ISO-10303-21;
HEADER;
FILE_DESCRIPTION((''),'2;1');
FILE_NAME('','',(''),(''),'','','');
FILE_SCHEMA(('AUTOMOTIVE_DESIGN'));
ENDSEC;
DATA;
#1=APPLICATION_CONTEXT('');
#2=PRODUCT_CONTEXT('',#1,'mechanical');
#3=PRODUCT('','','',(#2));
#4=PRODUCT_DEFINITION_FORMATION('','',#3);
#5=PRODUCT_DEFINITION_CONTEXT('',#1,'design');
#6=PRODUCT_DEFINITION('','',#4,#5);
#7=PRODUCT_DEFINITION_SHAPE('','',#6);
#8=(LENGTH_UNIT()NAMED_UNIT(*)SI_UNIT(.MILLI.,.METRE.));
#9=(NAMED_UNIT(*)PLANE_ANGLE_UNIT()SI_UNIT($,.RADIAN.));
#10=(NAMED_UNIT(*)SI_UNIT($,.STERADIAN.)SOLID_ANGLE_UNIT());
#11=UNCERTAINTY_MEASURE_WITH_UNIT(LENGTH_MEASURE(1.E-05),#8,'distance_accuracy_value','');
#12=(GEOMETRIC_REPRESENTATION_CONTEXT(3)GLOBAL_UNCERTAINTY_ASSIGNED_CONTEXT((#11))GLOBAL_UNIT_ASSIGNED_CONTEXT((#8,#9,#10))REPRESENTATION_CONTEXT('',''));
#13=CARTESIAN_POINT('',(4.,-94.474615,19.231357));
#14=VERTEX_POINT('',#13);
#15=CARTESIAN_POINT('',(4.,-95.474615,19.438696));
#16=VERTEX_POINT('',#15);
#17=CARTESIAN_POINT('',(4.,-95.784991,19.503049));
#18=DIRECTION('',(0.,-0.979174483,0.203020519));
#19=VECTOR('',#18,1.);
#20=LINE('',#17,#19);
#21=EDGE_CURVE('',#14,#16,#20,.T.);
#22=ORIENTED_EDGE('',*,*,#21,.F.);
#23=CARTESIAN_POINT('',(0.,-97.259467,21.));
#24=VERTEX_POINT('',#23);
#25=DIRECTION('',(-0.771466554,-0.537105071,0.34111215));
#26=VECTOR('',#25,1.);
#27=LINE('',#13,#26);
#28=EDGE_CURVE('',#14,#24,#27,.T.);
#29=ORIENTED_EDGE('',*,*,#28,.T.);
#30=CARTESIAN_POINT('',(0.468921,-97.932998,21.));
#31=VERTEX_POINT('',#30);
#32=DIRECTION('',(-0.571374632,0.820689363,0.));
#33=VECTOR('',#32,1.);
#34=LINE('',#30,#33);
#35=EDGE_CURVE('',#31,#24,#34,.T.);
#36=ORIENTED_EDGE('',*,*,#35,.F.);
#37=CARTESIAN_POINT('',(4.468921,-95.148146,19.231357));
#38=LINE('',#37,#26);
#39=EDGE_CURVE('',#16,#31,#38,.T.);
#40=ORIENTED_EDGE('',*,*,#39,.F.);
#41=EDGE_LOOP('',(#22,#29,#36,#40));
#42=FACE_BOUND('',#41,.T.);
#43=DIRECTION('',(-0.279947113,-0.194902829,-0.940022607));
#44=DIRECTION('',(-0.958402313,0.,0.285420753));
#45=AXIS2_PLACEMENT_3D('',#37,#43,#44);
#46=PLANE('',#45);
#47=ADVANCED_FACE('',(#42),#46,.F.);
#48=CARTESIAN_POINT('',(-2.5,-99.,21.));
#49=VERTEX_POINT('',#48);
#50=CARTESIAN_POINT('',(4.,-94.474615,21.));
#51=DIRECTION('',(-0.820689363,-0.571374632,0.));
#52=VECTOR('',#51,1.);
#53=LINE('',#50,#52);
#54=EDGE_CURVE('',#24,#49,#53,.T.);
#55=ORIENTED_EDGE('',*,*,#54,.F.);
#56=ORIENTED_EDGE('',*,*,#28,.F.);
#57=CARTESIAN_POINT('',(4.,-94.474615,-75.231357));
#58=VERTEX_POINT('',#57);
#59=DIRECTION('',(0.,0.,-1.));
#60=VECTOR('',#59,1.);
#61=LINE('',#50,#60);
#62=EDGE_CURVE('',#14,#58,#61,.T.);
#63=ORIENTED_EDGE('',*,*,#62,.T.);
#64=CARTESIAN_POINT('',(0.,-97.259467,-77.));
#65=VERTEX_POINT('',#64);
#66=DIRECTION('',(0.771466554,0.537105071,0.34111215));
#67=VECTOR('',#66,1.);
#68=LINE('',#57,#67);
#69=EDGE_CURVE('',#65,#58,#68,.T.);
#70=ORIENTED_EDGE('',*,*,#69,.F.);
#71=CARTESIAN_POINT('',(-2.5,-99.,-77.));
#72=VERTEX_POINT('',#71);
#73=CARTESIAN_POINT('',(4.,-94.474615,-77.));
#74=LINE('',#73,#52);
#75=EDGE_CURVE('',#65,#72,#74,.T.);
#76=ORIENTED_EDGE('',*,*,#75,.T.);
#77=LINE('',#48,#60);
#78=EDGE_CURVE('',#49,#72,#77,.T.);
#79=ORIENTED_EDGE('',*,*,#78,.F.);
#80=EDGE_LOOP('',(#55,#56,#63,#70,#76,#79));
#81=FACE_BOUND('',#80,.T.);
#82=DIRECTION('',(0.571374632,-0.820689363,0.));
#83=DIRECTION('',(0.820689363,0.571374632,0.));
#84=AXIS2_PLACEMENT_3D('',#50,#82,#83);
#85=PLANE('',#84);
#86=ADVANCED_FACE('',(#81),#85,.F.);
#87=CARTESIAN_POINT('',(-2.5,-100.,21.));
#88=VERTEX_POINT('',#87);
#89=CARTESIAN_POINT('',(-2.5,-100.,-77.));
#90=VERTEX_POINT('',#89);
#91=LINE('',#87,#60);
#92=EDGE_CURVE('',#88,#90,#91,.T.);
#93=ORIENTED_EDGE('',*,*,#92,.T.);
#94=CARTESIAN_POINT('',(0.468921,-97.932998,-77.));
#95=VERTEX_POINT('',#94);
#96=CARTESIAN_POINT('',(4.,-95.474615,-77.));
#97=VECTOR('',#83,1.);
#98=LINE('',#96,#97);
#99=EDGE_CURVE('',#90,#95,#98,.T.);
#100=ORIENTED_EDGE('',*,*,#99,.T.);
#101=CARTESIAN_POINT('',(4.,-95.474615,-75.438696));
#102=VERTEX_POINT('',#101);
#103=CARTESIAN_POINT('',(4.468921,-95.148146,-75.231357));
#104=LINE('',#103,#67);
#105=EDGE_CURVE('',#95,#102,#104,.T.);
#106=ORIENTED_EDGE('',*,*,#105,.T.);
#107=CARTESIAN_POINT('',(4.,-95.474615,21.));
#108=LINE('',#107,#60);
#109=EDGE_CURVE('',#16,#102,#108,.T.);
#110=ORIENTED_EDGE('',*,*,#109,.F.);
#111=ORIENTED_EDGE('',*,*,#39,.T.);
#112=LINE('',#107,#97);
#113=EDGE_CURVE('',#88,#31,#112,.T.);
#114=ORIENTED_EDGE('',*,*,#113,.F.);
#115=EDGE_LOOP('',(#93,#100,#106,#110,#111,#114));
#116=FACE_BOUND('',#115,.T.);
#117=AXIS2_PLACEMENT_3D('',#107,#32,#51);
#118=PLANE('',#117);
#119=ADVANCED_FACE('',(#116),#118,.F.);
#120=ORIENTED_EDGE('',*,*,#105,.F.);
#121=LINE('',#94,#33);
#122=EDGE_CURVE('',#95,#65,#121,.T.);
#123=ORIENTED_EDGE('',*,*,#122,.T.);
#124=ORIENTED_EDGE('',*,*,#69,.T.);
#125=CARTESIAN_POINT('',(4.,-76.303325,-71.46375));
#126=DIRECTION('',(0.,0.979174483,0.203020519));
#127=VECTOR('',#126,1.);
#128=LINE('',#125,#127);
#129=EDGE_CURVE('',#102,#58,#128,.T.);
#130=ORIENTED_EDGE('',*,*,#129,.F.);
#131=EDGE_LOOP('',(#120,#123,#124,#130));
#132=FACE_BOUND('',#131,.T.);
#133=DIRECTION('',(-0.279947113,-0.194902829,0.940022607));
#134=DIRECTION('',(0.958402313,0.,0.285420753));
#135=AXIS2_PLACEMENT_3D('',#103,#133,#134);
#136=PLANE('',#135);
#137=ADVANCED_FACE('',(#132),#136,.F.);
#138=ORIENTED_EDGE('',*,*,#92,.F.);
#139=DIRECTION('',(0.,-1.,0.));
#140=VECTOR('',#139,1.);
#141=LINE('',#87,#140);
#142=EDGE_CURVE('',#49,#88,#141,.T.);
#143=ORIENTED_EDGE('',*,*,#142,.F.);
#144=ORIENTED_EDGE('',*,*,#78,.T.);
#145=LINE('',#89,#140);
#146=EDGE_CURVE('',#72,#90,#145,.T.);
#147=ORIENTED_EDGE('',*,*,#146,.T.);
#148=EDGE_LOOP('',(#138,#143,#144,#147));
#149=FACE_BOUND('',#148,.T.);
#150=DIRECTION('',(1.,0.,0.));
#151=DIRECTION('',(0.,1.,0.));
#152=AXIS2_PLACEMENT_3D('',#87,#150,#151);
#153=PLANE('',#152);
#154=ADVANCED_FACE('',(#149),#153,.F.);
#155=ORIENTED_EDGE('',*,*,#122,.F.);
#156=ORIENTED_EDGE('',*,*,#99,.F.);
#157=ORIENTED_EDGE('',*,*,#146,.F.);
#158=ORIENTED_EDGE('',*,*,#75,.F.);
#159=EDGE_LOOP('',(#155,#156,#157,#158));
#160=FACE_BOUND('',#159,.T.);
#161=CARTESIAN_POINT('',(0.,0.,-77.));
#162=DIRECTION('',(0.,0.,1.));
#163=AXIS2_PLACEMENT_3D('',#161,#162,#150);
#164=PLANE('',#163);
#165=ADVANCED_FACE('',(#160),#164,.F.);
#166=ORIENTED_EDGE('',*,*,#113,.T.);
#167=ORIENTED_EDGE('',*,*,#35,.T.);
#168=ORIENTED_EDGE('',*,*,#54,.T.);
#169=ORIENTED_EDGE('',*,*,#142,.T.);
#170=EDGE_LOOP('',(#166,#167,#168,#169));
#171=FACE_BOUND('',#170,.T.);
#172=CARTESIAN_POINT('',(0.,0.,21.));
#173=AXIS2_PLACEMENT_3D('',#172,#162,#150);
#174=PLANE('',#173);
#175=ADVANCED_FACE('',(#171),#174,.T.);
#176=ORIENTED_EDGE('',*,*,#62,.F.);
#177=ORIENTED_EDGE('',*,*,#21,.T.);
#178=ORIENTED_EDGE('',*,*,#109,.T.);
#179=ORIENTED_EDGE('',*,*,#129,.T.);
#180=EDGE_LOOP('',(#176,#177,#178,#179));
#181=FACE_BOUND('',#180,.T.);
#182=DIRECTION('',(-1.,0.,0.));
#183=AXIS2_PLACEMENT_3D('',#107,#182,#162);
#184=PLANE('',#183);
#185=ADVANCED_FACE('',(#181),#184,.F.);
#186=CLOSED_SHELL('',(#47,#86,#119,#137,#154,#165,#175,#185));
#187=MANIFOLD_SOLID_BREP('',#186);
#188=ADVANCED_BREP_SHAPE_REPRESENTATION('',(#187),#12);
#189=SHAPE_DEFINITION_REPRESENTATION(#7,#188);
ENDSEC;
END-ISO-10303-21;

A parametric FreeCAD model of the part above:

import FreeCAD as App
import Part
import Sketcher

V = App.Vector


def add_polygon(sketch, points):
    """Adds a closed chain of lines whose ends are joined by coincident constraints."""
    first, n = sketch.GeometryCount, len(points)
    for a, b in zip(points, points[1:] + points[:1]):
        sketch.addGeometry(Part.LineSegment(App.Vector(*a, 0), App.Vector(*b, 0)), False)
    for i in range(n):
        sketch.addConstraint(Sketcher.Constraint("Coincident", first + i, 2, first + (i + 1) % n, 1))

doc = App.newDocument("Part")
params = doc.addObject("Spreadsheet::Sheet", "Params")
for row, (alias, value) in enumerate([
    ("sketch1_height", "1 mm"),
    ("pad1_length", "21 mm"),
    ("pad1_length2", "77 mm"),
], start=1):
    params.set(f"A{row}", alias)
    params.set(f"B{row}", "=" + value)
    params.setAlias(f"B{row}", alias)

body = doc.addObject("PartDesign::Body", "Body")

sketch1 = body.newObject("Sketcher::SketchObject", "Sketch")
sketch1.AttachmentSupport = (doc.getObject("XY_Plane"), [""])
sketch1.MapMode = "FlatFace"
add_polygon(sketch1, [(-2.5, -100), (4, -95.5), (4, -94.5), (-2.5, -99)])
sketch1.addConstraint([
    Sketcher.Constraint("Vertical", 1),
    Sketcher.Constraint("Vertical", 3),
    Sketcher.Constraint("Parallel", 0, 2),
    Sketcher.Constraint("DistanceY", 1, 1, 1, 2, 1.0),
    Sketcher.Constraint("DistanceX", -1, 1, 0, 2, 4.0),
    Sketcher.Constraint("DistanceY", 2, 2, -1, 1, 99.0),
    Sketcher.Constraint("DistanceX", 2, 2, -1, 1, 2.5),
    Sketcher.Constraint("Distance", 0, 7.920171),
])
sketch1.setExpression("Constraints[7]", "Params.sketch1_height")
pad1 = body.newObject("PartDesign::Pad", "Pad")
pad1.Profile = sketch1
pad1.Type = "TwoLengths"
pad1.setExpression("Length", "Params.pad1_length")
pad1.setExpression("Length2", "Params.pad1_length2")

sketch2 = body.newObject("Sketcher::SketchObject", "Sketch001")
sketch2.Placement = App.Placement(V(45.607015, -65.507269, 0), App.Rotation(V(0.820689363, 0.571374632, 0), V(0, 0, -1.000000001), V(-0.571374632, 0.820689363, 0), "ZXY"))
add_polygon(sketch2, [(-50.7, 75.2), (-50.7, 77), (-55.6, 77)])
add_polygon(sketch2, [(-50.7, -21), (-50.7, -19.2), (-55.6, -21)])
sketch2.addConstraint([
    Sketcher.Constraint("Vertical", 0),
    Sketcher.Constraint("Horizontal", 1),
    Sketcher.Constraint("Vertical", 3),
    Sketcher.Constraint("Horizontal", 5),
    Sketcher.Constraint("Vertical", 2, 2, 3, 2),
    Sketcher.Constraint("Vertical", 1, 2, 4, 2),
    Sketcher.Constraint("Equal", 0, 3),
    Sketcher.Constraint("DistanceY", -1, 1, 0, 2, 77.0),
    Sketcher.Constraint("DistanceY", 4, 2, -1, 1, 21.0),
    Sketcher.Constraint("DistanceX", 1, 2, 1, 1, 4.873951),
    Sketcher.Constraint("Distance", 2, 5.18493),
    Sketcher.Constraint("DistanceX", 0, 2, -1, 1, 50.697641),
])
pocket1 = body.newObject("PartDesign::Pocket", "Pocket")
pocket1.Profile = sketch2
pocket1.Type = "ThroughAll"

doc.recompute()
